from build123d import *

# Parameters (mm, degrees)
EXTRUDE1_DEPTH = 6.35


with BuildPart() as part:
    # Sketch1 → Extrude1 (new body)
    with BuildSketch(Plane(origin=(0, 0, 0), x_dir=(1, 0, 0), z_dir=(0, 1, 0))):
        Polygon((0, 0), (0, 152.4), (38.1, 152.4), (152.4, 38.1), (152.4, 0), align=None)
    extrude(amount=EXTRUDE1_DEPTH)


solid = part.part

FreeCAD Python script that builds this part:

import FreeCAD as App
import Part
import Sketcher

V = App.Vector
Q = App.Units.Quantity

doc = App.newDocument("Part")
body = doc.addObject("PartDesign::Body", "Body")

sketch1 = body.newObject("Sketcher::SketchObject", "Sketch")
sketch1.AttachmentSupport = (doc.getObject("XZ_Plane"), [""])
sketch1.MapMode = "FlatFace"
sketch1.addGeometry(Part.LineSegment(V(0, -152.4, 0), V(0, 0, 0)), False)
sketch1.addGeometry(Part.LineSegment(V(0, 0, 0), V(152.4, 0, 0)), False)
sketch1.addGeometry(Part.LineSegment(V(152.4, 0, 0), V(152.4, -38.1, 0)), False)
sketch1.addGeometry(Part.LineSegment(V(152.4, -38.1, 0), V(38.1, -152.4, 0)), False)
sketch1.addGeometry(Part.LineSegment(V(38.1, -152.4, 0), V(0, -152.4, 0)), False)
sketch1.addConstraint(Sketcher.Constraint("Coincident", 0, 2, 1, 1))
sketch1.addConstraint(Sketcher.Constraint("Coincident", 1, 2, 2, 1))
sketch1.addConstraint(Sketcher.Constraint("Coincident", 2, 2, 3, 1))
sketch1.addConstraint(Sketcher.Constraint("Coincident", 3, 2, 4, 1))
sketch1.addConstraint(Sketcher.Constraint("Coincident", 4, 2, 0, 1))
sketch1.addConstraint(Sketcher.Constraint("Vertical", 0))
sketch1.addConstraint(Sketcher.Constraint("Horizontal", 1))
sketch1.addConstraint(Sketcher.Constraint("Vertical", 2))
sketch1.addConstraint(Sketcher.Constraint("Horizontal", 4))
sketch1.addConstraint(Sketcher.Constraint("Coincident", 0, 2, -1, 1))
sketch1.addConstraint(Sketcher.Constraint("Equal", 1, 0))
sketch1.addConstraint(Sketcher.Constraint("Equal", 4, 2))
sketch1.addConstraint(Sketcher.Constraint("DistanceX", 1, 1, 1, 2, Q("6 in")))
sketch1.addConstraint(Sketcher.Constraint("DistanceX", 4, 2, 4, 1, Q("1.5 in")))
pad1 = body.newObject("PartDesign::Pad", "Pad")
pad1.Profile = sketch1
pad1.Length = Q("0.25 in")
pad1.Reversed = True

doc.recompute()
